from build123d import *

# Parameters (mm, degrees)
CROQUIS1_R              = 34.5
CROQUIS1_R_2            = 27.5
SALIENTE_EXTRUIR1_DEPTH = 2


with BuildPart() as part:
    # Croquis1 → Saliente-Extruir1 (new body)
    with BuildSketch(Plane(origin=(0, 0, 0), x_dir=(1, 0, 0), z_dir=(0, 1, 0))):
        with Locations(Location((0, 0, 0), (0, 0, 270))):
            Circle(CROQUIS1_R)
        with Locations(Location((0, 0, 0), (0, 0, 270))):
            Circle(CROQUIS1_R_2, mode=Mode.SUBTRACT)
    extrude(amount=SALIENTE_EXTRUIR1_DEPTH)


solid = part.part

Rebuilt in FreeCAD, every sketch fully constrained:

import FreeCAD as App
import Part
import Sketcher
from FreeCAD import Vector

doc = App.newDocument("Part")
params = doc.addObject("Spreadsheet::Sheet", "Params")
for row, (alias, value) in enumerate([
    ("sketch1_diameter", "69 mm"),
    ("sketch1_diameter2", "55 mm"),
    ("pad1_length", "2 mm"),
], start=1):
    params.set(f"A{row}", alias)
    params.set(f"B{row}", "=" + value)
    params.setAlias(f"B{row}", alias)

body = doc.addObject("PartDesign::Body", "Body")

# Sketch on XZ plane
sketch1 = doc.addObject("Sketcher::SketchObject", "Sketch")
body.addObject(sketch1)
sketch1.AttachmentSupport = (doc.XZ_Plane, [""])
sketch1.MapMode = "FlatFace"
sketch1.addGeometry(Part.Circle(Vector(0, 0, 0), Vector(0, 0, 1), 34), False)
sketch1.addGeometry(Part.Circle(Vector(0, 0, 0), Vector(0, 0, 1), 28), False)
sketch1.addConstraint(Sketcher.Constraint("Coincident", 0, 3, -1, 1))
sketch1.addConstraint(Sketcher.Constraint("Coincident", 1, 3, -1, 1))
sketch1.addConstraint(Sketcher.Constraint("Diameter", 0, 69.0))
sketch1.addConstraint(Sketcher.Constraint("Diameter", 1, 55.0))
sketch1.setExpression("Constraints[2]", "Params.sketch1_diameter")
sketch1.setExpression("Constraints[3]", "Params.sketch1_diameter2")
pad1 = doc.addObject("PartDesign::Pad", "Pad")
body.addObject(pad1)
pad1.Profile = sketch1
pad1.setExpression("Length", "Params.pad1_length")
pad1.Reversed = True

doc.recompute()
